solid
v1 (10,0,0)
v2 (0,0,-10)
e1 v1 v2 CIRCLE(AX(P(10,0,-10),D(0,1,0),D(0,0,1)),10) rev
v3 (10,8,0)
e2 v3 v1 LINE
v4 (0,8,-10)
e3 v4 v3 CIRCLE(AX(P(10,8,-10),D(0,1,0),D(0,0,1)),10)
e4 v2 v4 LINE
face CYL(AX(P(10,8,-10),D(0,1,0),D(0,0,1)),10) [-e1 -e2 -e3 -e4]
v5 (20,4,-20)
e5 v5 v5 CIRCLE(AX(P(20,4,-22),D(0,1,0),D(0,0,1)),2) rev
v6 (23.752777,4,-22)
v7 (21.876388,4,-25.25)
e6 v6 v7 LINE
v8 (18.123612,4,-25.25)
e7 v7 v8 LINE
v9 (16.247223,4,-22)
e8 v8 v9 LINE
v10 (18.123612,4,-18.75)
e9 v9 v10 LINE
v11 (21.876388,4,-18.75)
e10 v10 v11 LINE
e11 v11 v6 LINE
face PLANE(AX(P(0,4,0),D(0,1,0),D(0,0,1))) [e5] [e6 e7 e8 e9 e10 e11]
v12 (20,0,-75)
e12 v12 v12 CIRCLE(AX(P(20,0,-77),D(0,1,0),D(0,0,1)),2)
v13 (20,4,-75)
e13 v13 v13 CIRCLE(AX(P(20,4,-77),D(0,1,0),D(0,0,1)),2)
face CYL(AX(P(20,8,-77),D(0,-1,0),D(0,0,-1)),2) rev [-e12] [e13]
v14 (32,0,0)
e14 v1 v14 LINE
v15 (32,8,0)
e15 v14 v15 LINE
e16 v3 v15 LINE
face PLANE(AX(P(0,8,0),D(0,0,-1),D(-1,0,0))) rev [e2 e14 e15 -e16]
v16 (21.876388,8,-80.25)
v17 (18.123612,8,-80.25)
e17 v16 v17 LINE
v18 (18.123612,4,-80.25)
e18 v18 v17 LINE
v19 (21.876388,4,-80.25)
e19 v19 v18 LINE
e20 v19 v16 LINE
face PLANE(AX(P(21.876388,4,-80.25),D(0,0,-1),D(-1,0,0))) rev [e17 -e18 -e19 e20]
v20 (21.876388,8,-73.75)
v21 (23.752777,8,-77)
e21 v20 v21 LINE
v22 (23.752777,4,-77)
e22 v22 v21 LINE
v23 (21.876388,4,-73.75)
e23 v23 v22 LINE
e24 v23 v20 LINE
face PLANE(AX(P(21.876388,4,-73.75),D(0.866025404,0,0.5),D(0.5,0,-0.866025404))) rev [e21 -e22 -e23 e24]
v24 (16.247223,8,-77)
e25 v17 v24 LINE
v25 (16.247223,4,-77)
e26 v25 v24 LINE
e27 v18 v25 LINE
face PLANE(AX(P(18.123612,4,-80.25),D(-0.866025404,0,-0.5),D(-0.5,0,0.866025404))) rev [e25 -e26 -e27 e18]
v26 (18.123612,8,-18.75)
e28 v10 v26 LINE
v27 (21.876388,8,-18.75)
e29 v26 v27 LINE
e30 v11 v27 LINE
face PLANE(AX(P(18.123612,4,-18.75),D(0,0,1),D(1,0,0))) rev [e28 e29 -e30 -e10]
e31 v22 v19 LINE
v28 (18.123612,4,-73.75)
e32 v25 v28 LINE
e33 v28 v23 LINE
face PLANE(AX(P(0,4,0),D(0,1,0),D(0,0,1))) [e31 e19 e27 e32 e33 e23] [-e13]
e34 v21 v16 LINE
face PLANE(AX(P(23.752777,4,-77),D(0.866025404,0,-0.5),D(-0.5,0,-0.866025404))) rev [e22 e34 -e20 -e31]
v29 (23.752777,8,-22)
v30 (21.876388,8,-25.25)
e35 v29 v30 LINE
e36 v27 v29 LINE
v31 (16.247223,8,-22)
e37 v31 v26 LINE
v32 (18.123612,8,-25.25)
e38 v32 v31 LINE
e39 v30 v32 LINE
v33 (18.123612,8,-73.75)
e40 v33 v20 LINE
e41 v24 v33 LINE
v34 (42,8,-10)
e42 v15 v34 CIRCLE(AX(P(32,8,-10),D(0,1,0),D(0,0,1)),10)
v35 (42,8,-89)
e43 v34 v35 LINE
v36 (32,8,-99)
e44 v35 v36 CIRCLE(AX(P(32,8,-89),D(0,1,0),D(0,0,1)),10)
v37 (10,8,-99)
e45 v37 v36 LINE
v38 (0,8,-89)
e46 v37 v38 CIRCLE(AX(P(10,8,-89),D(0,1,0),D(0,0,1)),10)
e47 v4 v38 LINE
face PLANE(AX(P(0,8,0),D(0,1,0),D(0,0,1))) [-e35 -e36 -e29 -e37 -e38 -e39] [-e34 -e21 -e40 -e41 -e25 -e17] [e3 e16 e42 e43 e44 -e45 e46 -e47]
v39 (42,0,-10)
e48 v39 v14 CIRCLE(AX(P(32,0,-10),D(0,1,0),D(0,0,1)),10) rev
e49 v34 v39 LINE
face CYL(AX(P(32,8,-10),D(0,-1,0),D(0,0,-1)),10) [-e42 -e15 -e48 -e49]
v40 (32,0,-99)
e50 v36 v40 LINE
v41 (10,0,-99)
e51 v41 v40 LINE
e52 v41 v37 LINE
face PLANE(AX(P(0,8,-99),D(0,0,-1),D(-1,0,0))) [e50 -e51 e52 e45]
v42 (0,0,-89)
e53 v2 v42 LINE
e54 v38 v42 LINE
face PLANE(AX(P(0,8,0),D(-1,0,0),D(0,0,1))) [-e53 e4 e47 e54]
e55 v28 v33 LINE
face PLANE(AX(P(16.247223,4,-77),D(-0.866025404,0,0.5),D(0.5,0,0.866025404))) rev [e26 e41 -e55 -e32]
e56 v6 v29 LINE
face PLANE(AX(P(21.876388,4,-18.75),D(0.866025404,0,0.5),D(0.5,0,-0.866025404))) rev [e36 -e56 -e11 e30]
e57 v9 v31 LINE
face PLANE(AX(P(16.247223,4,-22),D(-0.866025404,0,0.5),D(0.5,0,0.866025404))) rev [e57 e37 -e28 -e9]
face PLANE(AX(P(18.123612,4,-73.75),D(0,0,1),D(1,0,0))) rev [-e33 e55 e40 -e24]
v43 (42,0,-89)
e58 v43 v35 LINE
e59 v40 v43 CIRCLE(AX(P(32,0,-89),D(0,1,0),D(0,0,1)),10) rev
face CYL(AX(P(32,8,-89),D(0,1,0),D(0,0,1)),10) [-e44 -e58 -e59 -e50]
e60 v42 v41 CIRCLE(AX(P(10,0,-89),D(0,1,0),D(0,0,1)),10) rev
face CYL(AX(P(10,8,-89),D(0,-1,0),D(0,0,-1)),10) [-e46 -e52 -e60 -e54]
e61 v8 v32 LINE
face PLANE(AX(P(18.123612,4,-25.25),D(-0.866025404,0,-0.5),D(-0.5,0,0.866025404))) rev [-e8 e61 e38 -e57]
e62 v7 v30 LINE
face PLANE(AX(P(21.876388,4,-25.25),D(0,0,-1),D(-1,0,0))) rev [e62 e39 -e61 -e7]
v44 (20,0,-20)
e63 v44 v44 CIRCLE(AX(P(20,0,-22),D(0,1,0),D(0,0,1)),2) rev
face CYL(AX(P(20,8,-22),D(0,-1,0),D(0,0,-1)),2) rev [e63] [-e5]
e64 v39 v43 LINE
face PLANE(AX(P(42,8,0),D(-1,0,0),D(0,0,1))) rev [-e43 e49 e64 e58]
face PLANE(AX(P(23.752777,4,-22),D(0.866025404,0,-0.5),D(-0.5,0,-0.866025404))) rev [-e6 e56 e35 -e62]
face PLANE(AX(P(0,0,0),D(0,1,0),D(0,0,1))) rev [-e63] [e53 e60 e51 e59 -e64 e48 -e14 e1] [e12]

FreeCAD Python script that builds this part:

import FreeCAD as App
import Part
import Sketcher
from FreeCAD import Vector
Q = App.Units.Quantity


def edges_at(feature, points):
    """Names of the edges that pass closest to the given points."""
    edges = feature.Shape.Edges
    near = lambda p: min(range(len(edges)), key=lambda i: edges[i].distToShape(Part.Vertex(*p))[0])
    return sorted({f"Edge{near(p) + 1}" for p in points})

doc = App.newDocument("Part")
params = doc.addObject("Spreadsheet::Sheet", "Params")
for row, (alias, value) in enumerate([
    ("sketch1_diameter", "4 mm"),
    ("sketch1_width", "42 mm"),
    ("sketch1_height", "99 mm"),
    ("pad1_length", "8 mm"),
    ("pocket1_length", "4 mm"),
    ("fillet_radius", "10 mm"),
], start=1):
    params.set(f"A{row}", alias)
    params.set(f"B{row}", "=" + value)
    params.setAlias(f"B{row}", alias)

body = doc.addObject("PartDesign::Body", "Body")

sketch1 = body.newObject("Sketcher::SketchObject", "Sketch")
sketch1.AttachmentSupport = (doc.getObject("XZ_Plane"), [""])
sketch1.MapMode = "FlatFace"
sketch1.addGeometry(Part.LineSegment(Vector(0, -99, 0), Vector(0, 0, 0)), False)
sketch1.addGeometry(Part.LineSegment(Vector(0, 0, 0), Vector(42, 0, 0)), False)
sketch1.addGeometry(Part.LineSegment(Vector(42, 0, 0), Vector(42, -99, 0)), False)
sketch1.addGeometry(Part.LineSegment(Vector(42, -99, 0), Vector(0, -99, 0)), False)
sketch1.addGeometry(Part.Circle(Vector(20, -22, 0), Vector(0, 0, 1), 2), False)
sketch1.addGeometry(Part.Circle(Vector(20, -77, 0), Vector(0, 0, 1), 2), False)
sketch1.addConstraint(Sketcher.Constraint("Coincident", 0, 2, 1, 1))
sketch1.addConstraint(Sketcher.Constraint("Coincident", 1, 2, 2, 1))
sketch1.addConstraint(Sketcher.Constraint("Coincident", 2, 2, 3, 1))
sketch1.addConstraint(Sketcher.Constraint("Coincident", 3, 2, 0, 1))
sketch1.addConstraint(Sketcher.Constraint("Vertical", 0))
sketch1.addConstraint(Sketcher.Constraint("Horizontal", 1))
sketch1.addConstraint(Sketcher.Constraint("Vertical", 2))
sketch1.addConstraint(Sketcher.Constraint("Horizontal", 3))
sketch1.addConstraint(Sketcher.Constraint("Coincident", 0, 2, -1, 1))
sketch1.addConstraint(Sketcher.Constraint("Equal", 4, 5))
sketch1.addConstraint(Sketcher.Constraint("Vertical", 4, 3, 5, 3))
sketch1.addConstraint(Sketcher.Constraint("Diameter", 4, Q("4 mm")))
sketch1.addConstraint(Sketcher.Constraint("DistanceX", 1, 1, 1, 2, Q("42 mm")))
sketch1.addConstraint(Sketcher.Constraint("DistanceY", 0, 1, 0, 2, Q("99 mm")))
sketch1.addConstraint(Sketcher.Constraint("DistanceX", -1, 1, 4, 3, Q("20 mm")))
sketch1.addConstraint(Sketcher.Constraint("DistanceY", 4, 3, -1, 1, Q("22 mm")))
sketch1.addConstraint(Sketcher.Constraint("DistanceY", 5, 3, -1, 1, Q("77 mm")))
sketch1.setExpression("Constraints[11]", "Params.sketch1_diameter")
sketch1.setExpression("Constraints[12]", "Params.sketch1_width")
sketch1.setExpression("Constraints[13]", "Params.sketch1_height")
pad1 = body.newObject("PartDesign::Pad", "Pad")
pad1.Profile = sketch1
pad1.setExpression("Length", "Params.pad1_length")
pad1.Reversed = True

sketch2 = body.newObject("Sketcher::SketchObject", "Sketch001")
sketch2.AttachmentSupport = (doc.getObject("XZ_Plane"), [""])
sketch2.MapMode = "FlatFace"
sketch2.AttachmentOffset = App.Placement(Vector(0, 0, -8), App.Rotation())
sketch2.addGeometry(Part.LineSegment(Vector(21.9, -80.2, 0), Vector(18.1, -80.2, 0)), False)
sketch2.addGeometry(Part.LineSegment(Vector(18.1, -80.2, 0), Vector(16.2, -77, 0)), False)
sketch2.addGeometry(Part.LineSegment(Vector(16.2, -77, 0), Vector(18.1, -73.8, 0)), False)
sketch2.addGeometry(Part.LineSegment(Vector(18.1, -73.8, 0), Vector(21.9, -73.8, 0)), False)
sketch2.addGeometry(Part.LineSegment(Vector(21.9, -73.8, 0), Vector(23.8, -77, 0)), False)
sketch2.addGeometry(Part.LineSegment(Vector(23.8, -77, 0), Vector(21.9, -80.2, 0)), False)
sketch2.addGeometry(Part.LineSegment(Vector(21.9, -18.8, 0), Vector(23.8, -22, 0)), False)
sketch2.addGeometry(Part.LineSegment(Vector(23.8, -22, 0), Vector(21.9, -25.2, 0)), False)
sketch2.addGeometry(Part.LineSegment(Vector(21.9, -25.2, 0), Vector(18.1, -25.2, 0)), False)
sketch2.addGeometry(Part.LineSegment(Vector(18.1, -25.2, 0), Vector(16.2, -22, 0)), False)
sketch2.addGeometry(Part.LineSegment(Vector(16.2, -22, 0), Vector(18.1, -18.8, 0)), False)
sketch2.addGeometry(Part.LineSegment(Vector(18.1, -18.8, 0), Vector(21.9, -18.8, 0)), False)
sketch2.addConstraint(Sketcher.Constraint("Coincident", 0, 2, 1, 1))
sketch2.addConstraint(Sketcher.Constraint("Coincident", 1, 2, 2, 1))
sketch2.addConstraint(Sketcher.Constraint("Coincident", 2, 2, 3, 1))
sketch2.addConstraint(Sketcher.Constraint("Coincident", 3, 2, 4, 1))
sketch2.addConstraint(Sketcher.Constraint("Coincident", 4, 2, 5, 1))
sketch2.addConstraint(Sketcher.Constraint("Coincident", 5, 2, 0, 1))
sketch2.addConstraint(Sketcher.Constraint("Coincident", 6, 2, 7, 1))
sketch2.addConstraint(Sketcher.Constraint("Coincident", 7, 2, 8, 1))
sketch2.addConstraint(Sketcher.Constraint("Coincident", 8, 2, 9, 1))
sketch2.addConstraint(Sketcher.Constraint("Coincident", 9, 2, 10, 1))
sketch2.addConstraint(Sketcher.Constraint("Coincident", 10, 2, 11, 1))
sketch2.addConstraint(Sketcher.Constraint("Coincident", 11, 2, 6, 1))
sketch2.addConstraint(Sketcher.Constraint("Horizontal", 0))
sketch2.addConstraint(Sketcher.Constraint("Horizontal", 3))
sketch2.addConstraint(Sketcher.Constraint("Horizontal", 8))
sketch2.addConstraint(Sketcher.Constraint("Horizontal", 11))
sketch2.addConstraint(Sketcher.Constraint("Parallel", 1, 4))
sketch2.addConstraint(Sketcher.Constraint("Parallel", 2, 5))
sketch2.addConstraint(Sketcher.Constraint("Parallel", 4, 6))
sketch2.addConstraint(Sketcher.Constraint("Parallel", 5, 7))
sketch2.addConstraint(Sketcher.Constraint("Parallel", 6, 9))
sketch2.addConstraint(Sketcher.Constraint("Parallel", 7, 10))
sketch2.addConstraint(Sketcher.Constraint("Horizontal", 1, 2, 4, 2))
sketch2.addConstraint(Sketcher.Constraint("Horizontal", 6, 2, 9, 2))
sketch2.addConstraint(Sketcher.Constraint("Vertical", 0, 2, 2, 2))
sketch2.addConstraint(Sketcher.Constraint("Vertical", 3, 2, 5, 2))
sketch2.addConstraint(Sketcher.Constraint("Vertical", 4, 2, 6, 2))
sketch2.addConstraint(Sketcher.Constraint("Vertical", 5, 2, 7, 2))
sketch2.addConstraint(Sketcher.Constraint("Vertical", 2, 2, 8, 2))
sketch2.addConstraint(Sketcher.Constraint("Vertical", 8, 2, 10, 2))
sketch2.addConstraint(Sketcher.Constraint("Angle", 1, Q("120 deg")))
sketch2.addConstraint(Sketcher.Constraint("DistanceY", 1, 2, -1, 1, Q("77 mm")))
sketch2.addConstraint(Sketcher.Constraint("DistanceY", 6, 2, -1, 1, Q("22 mm")))
sketch2.addConstraint(Sketcher.Constraint("DistanceY", 0, 2, 2, 2, Q("6.5 mm")))
sketch2.addConstraint(Sketcher.Constraint("DistanceX", 0, 2, 0, 1, Q("3.752777 mm")))
sketch2.addConstraint(Sketcher.Constraint("DistanceX", -1, 1, 0, 2, Q("18.123612 mm")))
pocket1 = body.newObject("PartDesign::Pocket", "Pocket")
pocket1.Profile = sketch2
pocket1.setExpression("Length", "Params.pocket1_length")
pocket1.Reversed = True
doc.recompute()

fillet = body.newObject("PartDesign::Fillet", "Fillet")
fillet.Base = (pocket1, edges_at(pocket1, [
    (0, 4, 0),
    (0, 4, -99),
    (42, 4, -99),
    (42, 4, 0),
]))
fillet.setExpression("Radius", "Params.fillet_radius")

doc.recompute()
